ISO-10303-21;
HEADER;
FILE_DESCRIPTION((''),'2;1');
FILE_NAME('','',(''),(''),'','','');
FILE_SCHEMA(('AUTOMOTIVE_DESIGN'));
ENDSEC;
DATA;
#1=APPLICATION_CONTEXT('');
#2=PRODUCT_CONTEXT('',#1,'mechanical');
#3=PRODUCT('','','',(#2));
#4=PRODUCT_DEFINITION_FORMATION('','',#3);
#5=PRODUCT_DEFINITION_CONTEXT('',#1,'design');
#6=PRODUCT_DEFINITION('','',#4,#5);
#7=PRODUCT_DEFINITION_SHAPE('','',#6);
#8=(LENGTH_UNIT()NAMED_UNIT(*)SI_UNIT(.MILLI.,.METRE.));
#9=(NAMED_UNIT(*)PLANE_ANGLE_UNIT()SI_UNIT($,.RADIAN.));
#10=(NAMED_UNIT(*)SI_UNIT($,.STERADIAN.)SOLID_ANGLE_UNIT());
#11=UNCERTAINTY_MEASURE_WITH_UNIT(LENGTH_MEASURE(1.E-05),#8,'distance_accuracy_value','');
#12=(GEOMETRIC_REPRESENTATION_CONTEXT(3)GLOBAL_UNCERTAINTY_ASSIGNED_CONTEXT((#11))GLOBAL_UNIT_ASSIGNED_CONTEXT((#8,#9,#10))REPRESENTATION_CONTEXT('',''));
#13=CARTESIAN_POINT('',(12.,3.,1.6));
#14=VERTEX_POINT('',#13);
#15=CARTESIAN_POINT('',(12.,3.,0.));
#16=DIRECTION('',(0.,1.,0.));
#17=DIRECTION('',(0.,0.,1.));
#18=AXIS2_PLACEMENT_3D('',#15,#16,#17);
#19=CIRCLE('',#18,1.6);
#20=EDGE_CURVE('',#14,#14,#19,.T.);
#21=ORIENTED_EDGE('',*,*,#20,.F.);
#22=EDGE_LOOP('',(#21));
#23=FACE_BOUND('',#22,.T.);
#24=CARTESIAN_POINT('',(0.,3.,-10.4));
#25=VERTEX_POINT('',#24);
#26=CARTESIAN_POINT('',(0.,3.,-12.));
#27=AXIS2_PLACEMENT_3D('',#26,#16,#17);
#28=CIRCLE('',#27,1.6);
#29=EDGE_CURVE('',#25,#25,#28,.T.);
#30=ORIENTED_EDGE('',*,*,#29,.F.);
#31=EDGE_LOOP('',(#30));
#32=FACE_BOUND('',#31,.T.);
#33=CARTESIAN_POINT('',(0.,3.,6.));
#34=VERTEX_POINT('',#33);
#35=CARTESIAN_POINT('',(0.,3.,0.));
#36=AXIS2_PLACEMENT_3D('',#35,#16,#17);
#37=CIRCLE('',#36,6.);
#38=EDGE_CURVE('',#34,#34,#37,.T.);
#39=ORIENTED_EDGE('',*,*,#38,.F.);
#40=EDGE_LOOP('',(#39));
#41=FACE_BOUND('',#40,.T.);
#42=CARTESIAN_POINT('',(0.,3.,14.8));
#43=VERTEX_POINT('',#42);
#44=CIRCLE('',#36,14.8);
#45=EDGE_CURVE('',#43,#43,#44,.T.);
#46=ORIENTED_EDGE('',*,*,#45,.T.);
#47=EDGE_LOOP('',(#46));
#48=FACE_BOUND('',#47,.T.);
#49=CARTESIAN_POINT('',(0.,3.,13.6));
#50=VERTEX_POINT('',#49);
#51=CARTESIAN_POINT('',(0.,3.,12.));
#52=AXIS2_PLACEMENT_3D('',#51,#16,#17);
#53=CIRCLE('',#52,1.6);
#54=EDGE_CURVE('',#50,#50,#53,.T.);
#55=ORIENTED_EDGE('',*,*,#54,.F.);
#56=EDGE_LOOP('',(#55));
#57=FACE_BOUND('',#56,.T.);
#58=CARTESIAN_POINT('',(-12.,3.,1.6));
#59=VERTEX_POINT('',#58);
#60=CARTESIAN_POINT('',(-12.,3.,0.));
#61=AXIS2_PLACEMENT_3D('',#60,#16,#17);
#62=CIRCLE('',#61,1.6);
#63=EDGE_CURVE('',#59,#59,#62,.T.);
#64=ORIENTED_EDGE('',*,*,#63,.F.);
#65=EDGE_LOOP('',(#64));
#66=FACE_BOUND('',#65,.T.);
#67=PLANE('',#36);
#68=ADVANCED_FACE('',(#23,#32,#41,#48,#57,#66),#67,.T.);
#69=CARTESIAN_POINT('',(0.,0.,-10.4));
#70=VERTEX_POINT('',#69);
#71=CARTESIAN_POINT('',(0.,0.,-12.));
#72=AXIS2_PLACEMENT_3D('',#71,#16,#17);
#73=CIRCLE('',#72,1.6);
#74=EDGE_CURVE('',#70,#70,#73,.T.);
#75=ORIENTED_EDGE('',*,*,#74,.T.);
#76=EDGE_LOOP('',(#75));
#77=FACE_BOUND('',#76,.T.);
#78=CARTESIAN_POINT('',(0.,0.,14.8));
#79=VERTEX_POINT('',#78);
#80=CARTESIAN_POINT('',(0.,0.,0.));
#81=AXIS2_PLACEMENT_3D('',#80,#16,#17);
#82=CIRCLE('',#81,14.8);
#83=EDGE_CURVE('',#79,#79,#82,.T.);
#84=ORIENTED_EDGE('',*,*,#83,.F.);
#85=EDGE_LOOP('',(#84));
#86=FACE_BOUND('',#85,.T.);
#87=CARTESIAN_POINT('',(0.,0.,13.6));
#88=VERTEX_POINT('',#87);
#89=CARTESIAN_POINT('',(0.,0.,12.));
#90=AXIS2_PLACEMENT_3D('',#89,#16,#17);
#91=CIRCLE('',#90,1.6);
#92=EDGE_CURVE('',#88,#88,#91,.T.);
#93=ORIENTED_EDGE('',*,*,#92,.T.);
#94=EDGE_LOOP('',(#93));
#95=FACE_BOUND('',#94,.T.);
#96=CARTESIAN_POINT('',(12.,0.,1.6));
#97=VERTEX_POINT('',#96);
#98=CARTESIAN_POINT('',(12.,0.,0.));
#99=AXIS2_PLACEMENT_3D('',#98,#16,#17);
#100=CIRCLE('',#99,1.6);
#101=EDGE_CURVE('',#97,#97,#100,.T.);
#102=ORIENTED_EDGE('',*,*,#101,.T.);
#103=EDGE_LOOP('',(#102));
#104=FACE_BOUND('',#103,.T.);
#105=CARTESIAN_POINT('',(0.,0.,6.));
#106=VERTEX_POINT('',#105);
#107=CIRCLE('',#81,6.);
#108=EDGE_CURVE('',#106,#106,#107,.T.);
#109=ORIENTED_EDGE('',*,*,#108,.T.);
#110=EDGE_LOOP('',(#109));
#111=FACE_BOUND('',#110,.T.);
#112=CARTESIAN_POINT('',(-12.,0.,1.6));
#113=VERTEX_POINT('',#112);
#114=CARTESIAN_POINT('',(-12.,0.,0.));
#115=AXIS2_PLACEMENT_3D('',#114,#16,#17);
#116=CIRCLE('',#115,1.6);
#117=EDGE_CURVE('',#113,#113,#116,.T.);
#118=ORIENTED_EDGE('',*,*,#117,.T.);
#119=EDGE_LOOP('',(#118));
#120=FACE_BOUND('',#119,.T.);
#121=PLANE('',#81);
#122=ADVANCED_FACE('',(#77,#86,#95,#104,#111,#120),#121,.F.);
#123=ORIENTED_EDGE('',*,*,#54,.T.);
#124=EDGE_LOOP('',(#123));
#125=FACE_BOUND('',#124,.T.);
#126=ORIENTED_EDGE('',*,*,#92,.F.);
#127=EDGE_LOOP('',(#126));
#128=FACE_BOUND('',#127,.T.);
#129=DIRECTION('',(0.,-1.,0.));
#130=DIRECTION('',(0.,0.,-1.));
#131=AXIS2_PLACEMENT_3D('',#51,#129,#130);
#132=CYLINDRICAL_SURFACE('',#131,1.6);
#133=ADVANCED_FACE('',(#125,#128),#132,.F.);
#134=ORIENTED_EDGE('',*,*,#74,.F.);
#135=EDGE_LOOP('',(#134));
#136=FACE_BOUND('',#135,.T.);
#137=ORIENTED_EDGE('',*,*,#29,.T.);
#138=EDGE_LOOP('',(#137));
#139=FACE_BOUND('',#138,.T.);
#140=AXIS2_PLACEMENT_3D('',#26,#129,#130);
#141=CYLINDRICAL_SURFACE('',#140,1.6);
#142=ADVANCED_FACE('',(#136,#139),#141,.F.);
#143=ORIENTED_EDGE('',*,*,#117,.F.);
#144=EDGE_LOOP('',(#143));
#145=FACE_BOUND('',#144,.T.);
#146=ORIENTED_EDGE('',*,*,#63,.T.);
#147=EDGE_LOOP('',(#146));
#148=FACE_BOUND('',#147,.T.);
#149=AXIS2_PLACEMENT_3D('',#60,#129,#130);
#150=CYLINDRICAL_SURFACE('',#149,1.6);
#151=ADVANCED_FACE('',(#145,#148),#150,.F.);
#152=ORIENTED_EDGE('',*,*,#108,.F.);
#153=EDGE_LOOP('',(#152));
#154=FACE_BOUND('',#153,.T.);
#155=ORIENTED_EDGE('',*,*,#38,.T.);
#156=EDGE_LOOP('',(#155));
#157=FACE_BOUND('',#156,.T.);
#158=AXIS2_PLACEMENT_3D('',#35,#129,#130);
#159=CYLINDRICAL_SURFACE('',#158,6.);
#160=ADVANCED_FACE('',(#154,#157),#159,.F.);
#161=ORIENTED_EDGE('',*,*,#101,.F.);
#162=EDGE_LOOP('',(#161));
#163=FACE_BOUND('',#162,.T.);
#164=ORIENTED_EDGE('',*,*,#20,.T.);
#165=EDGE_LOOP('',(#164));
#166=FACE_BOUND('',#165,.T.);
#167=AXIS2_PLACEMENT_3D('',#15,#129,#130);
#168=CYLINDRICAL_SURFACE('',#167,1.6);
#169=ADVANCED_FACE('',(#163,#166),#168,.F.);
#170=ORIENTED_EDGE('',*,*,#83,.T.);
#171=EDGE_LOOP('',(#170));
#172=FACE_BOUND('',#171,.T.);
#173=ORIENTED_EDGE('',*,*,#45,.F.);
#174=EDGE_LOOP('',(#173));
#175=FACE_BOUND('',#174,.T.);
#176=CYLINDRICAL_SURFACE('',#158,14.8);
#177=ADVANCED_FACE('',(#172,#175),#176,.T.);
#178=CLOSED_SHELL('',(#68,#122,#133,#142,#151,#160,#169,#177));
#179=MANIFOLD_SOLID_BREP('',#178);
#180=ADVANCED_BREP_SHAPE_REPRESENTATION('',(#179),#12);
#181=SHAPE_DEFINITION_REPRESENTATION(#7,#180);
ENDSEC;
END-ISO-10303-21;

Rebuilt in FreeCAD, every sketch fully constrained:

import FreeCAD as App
import Part
import Sketcher
from FreeCAD import Vector
Q = App.Units.Quantity

doc = App.newDocument("Part")
body = doc.addObject("PartDesign::Body", "Body")

# Sketch on XZ plane
sketch1 = body.newObject("Sketcher::SketchObject", "Sketch")
sketch1.AttachmentSupport = (doc.getObject("XZ_Plane"), [""])
sketch1.MapMode = "FlatFace"
sketch1.addGeometry([
    Part.Circle(Vector(0, 0, 0), Vector(0, 0, 1), 14.8),  # 0
    Part.Circle(Vector(-12, 0, 0), Vector(0, 0, 1), 1.6),  # 1
    Part.Circle(Vector(0, 12, 0), Vector(0, 0, 1), 1.6),  # 2
    Part.Circle(Vector(0, 0, 0), Vector(0, 0, 1), 6),  # 3
    Part.Circle(Vector(12, 0, 0), Vector(0, 0, 1), 1.6),  # 4
    Part.Circle(Vector(0, -12, 0), Vector(0, 0, 1), 1.6),  # 5
], False)
sketch1.addConstraint([
    Sketcher.Constraint("Coincident", 0, 3, -1, 1),
    Sketcher.Constraint("Coincident", 3, 3, -1, 1),
    Sketcher.Constraint("Equal", 1, 2),
    Sketcher.Constraint("Equal", 2, 4),
    Sketcher.Constraint("Equal", 4, 5),
    Sketcher.Constraint("Symmetric", 1, 3, 4, 3, -1, 1),
    Sketcher.Constraint("Symmetric", 2, 3, 5, 3, -1, 1),
    Sketcher.Constraint("PointOnObject", 1, 3, -1),
    Sketcher.Constraint("PointOnObject", 2, 3, -2),
    Sketcher.Constraint("Diameter", 3, Q("12 mm")),
    Sketcher.Constraint("Diameter", 0, Q("29.6 mm")),
    Sketcher.Constraint("Diameter", 1, Q("3.2 mm")),
    Sketcher.Constraint("DistanceX", 1, 3, -1, 1, Q("12 mm")),
    Sketcher.Constraint("DistanceY", -1, 1, 2, 3, Q("12 mm")),
])
pad1 = body.newObject("PartDesign::Pad", "Pad")
pad1.Profile = sketch1
pad1.Length = 3
pad1.Reversed = True

doc.recompute()
